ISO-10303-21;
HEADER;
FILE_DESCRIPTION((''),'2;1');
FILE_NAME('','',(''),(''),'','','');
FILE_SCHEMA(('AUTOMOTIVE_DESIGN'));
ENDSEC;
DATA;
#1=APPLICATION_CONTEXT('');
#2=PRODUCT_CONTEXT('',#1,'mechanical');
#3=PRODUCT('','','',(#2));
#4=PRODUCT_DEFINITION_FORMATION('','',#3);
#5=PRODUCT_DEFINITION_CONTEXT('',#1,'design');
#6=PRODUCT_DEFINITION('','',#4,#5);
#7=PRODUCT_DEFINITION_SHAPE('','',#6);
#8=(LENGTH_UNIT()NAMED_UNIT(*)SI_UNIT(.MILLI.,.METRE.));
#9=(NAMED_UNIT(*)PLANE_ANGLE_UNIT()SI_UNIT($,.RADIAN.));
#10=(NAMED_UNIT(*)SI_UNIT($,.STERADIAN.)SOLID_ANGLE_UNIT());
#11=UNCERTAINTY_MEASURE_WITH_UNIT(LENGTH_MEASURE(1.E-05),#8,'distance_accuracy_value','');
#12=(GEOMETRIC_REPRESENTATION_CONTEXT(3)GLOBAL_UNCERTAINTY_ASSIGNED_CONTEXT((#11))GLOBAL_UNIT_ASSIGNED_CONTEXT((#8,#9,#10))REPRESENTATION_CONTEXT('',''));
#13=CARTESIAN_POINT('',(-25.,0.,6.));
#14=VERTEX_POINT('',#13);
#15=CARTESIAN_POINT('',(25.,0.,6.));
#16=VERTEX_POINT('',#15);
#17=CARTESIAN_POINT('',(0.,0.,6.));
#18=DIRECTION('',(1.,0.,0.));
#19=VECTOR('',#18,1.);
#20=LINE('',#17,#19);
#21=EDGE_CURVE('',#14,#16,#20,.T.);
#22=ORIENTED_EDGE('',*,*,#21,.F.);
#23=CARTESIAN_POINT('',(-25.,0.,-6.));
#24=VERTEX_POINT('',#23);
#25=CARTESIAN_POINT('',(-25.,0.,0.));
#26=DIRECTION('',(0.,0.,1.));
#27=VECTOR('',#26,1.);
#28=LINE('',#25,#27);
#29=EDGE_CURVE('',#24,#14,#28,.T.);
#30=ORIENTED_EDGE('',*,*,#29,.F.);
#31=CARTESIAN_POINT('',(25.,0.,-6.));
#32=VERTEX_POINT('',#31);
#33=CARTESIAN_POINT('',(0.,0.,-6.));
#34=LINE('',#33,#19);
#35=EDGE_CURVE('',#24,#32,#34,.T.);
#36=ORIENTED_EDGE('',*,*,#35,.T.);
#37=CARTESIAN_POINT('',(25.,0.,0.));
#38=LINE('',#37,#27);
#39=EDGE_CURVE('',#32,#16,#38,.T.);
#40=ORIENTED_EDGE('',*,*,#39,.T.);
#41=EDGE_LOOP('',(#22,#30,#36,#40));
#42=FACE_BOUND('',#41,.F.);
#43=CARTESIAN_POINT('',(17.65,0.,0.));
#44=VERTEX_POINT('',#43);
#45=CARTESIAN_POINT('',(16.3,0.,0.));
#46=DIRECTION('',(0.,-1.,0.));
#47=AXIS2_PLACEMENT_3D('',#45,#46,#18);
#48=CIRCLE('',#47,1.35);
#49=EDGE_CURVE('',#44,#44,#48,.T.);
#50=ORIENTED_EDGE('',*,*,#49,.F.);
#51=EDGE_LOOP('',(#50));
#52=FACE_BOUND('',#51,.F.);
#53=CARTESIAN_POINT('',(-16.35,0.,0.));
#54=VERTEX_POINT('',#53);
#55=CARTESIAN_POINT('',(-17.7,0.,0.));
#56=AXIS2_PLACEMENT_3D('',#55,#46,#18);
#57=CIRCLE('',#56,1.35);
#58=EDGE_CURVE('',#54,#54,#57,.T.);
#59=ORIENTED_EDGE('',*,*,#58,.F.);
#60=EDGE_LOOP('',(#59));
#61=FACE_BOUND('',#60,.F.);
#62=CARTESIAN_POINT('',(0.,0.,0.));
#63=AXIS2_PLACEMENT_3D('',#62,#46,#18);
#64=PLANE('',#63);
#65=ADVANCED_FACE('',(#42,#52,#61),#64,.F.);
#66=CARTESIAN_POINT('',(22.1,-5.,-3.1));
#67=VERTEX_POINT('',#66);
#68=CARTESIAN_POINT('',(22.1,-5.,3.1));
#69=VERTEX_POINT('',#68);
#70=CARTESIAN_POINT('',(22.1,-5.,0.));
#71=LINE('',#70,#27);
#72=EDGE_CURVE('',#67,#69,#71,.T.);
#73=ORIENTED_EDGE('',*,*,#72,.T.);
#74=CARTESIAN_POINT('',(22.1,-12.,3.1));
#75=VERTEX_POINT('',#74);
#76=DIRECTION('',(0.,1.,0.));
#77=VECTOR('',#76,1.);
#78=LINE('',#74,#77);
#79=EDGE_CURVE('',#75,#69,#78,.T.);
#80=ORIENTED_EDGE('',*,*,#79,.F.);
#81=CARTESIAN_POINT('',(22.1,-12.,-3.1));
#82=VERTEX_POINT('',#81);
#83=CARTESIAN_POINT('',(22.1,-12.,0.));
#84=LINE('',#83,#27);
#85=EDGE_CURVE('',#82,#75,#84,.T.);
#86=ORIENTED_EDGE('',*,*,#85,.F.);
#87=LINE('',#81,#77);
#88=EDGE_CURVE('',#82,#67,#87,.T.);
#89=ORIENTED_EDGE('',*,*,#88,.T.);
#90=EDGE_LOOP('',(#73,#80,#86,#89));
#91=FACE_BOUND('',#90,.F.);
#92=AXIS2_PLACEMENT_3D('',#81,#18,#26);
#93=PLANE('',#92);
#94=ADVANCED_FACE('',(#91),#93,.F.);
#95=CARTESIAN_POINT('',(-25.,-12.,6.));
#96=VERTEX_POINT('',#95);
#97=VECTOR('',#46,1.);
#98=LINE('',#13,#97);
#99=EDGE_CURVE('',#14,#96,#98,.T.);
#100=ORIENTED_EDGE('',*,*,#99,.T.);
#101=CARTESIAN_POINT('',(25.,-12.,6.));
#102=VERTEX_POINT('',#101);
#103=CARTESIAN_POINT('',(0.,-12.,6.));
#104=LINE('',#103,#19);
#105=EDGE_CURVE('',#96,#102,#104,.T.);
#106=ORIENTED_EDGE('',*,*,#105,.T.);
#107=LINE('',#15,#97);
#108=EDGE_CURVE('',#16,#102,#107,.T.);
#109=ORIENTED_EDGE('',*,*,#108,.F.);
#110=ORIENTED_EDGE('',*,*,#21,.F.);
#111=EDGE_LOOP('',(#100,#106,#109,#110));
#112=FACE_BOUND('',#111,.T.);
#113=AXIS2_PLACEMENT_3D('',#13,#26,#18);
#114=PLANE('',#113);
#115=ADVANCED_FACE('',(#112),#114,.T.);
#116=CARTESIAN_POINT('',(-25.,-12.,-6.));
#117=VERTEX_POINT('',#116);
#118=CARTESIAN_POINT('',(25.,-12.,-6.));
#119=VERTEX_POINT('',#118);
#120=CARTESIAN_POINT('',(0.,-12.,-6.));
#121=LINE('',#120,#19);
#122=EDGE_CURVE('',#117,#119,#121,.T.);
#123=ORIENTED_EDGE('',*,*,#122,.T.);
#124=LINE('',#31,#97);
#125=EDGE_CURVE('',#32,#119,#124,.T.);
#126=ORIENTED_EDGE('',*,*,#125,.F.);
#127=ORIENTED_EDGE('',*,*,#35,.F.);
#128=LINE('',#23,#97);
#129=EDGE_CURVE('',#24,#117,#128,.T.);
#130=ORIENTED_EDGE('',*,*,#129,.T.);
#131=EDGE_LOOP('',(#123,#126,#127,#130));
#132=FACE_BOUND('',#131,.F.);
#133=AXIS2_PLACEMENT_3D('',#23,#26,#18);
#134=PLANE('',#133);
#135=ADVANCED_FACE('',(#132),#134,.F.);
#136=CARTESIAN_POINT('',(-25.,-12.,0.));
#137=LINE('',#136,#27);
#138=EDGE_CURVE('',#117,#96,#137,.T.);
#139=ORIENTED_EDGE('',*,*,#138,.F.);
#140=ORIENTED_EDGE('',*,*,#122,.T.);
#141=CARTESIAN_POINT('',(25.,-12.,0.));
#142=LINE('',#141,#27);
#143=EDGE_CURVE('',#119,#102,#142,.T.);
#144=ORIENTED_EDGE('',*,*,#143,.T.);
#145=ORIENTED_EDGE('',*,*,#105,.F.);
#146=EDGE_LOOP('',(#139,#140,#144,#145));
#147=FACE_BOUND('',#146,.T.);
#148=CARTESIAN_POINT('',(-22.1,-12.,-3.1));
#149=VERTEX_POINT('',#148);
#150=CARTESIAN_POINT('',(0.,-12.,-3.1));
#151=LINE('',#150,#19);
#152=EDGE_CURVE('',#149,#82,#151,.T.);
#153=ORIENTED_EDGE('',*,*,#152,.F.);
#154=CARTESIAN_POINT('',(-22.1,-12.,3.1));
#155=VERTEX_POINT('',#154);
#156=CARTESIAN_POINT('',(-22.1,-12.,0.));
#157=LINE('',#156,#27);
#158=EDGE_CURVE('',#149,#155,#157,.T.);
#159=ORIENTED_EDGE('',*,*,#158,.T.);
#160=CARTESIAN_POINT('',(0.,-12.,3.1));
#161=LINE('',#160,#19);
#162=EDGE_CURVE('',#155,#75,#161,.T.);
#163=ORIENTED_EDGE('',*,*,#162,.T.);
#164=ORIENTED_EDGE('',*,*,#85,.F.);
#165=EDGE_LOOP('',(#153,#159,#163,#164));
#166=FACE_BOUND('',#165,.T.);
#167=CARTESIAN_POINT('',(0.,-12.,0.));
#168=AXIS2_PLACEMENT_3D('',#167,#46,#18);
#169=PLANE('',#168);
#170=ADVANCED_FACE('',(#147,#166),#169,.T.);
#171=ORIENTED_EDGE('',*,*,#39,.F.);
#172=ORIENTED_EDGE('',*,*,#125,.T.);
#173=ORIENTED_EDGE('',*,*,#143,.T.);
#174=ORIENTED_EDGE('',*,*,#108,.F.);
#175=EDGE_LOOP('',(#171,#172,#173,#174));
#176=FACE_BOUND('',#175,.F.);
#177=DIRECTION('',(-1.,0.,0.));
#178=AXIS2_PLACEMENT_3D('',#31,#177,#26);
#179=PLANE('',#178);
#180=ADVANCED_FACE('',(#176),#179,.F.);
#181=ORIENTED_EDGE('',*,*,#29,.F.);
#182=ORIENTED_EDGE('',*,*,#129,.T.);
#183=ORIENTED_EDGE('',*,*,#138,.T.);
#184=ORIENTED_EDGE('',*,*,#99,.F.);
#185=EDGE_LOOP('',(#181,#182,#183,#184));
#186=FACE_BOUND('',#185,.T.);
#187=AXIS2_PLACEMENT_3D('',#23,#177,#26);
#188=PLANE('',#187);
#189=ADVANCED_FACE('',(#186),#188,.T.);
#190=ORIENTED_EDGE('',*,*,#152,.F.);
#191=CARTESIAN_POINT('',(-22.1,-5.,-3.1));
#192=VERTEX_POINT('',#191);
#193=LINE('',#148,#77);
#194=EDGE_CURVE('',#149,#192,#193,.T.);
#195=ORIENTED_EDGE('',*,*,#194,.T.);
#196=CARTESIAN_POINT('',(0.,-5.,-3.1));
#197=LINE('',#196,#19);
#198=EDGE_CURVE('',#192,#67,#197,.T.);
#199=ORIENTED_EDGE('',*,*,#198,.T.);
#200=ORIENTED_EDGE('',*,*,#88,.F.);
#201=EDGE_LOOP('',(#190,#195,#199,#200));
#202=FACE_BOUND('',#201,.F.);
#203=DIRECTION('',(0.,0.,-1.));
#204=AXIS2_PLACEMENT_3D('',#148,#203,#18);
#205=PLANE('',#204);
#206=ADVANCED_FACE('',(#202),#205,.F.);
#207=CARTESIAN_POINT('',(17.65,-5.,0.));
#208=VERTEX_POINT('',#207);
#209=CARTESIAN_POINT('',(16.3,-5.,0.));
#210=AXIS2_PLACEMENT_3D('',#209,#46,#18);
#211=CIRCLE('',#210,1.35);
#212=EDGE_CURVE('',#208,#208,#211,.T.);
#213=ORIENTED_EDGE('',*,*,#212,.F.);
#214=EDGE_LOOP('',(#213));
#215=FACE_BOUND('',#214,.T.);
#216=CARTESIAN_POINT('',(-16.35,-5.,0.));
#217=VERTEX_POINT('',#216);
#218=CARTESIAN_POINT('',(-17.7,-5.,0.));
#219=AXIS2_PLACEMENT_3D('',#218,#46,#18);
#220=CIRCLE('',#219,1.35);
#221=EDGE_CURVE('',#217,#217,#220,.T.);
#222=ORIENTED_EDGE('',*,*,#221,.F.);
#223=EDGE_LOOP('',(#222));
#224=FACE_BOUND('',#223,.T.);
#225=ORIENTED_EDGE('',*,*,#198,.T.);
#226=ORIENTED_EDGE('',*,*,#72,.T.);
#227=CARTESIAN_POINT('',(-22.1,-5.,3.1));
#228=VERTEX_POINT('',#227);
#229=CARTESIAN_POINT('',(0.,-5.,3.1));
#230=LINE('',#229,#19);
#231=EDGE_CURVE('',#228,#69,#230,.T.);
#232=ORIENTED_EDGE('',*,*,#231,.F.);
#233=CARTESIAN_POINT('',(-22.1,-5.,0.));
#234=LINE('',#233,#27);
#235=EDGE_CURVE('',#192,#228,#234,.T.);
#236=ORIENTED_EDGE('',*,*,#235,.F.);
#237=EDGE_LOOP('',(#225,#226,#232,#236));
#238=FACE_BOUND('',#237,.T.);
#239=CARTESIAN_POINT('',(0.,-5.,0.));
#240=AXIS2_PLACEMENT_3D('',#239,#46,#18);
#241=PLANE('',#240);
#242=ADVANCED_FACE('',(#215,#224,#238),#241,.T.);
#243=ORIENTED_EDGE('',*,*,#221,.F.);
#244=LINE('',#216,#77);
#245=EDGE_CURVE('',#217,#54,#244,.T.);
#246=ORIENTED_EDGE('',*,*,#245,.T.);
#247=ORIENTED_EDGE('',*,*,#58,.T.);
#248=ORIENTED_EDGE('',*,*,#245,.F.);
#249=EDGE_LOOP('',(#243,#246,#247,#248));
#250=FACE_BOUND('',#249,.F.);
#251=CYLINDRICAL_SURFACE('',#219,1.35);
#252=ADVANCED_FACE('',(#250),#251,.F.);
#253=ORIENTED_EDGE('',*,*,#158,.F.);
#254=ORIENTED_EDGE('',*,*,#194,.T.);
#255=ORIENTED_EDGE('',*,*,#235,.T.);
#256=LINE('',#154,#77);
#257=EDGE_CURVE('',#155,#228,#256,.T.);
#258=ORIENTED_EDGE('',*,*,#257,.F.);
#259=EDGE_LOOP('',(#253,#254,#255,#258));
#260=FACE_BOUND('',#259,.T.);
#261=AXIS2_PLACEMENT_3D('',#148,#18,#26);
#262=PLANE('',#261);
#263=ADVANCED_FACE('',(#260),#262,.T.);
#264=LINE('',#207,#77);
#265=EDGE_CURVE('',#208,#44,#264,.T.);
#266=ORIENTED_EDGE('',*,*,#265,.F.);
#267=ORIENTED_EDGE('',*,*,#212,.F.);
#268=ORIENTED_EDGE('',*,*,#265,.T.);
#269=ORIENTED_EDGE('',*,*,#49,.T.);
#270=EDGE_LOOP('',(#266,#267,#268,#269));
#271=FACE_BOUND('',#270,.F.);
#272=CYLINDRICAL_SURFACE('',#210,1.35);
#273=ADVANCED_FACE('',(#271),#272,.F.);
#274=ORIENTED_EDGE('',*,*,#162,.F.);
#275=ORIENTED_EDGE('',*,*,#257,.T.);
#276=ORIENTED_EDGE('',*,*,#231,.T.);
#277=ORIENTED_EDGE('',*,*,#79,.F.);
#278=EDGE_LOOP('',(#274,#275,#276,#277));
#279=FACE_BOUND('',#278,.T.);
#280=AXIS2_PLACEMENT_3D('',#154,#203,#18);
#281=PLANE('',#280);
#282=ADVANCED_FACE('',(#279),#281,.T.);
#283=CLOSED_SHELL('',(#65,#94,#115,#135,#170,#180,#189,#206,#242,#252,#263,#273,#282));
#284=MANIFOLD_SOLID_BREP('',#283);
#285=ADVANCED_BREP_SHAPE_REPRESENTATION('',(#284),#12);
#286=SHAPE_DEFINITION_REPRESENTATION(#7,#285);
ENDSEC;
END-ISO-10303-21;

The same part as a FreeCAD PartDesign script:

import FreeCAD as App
import Part
import Sketcher

V = App.Vector


def add_polygon(sketch, points):
    """Adds a closed chain of lines whose ends are joined by coincident constraints."""
    first, n = sketch.GeometryCount, len(points)
    for a, b in zip(points, points[1:] + points[:1]):
        sketch.addGeometry(Part.LineSegment(App.Vector(*a, 0), App.Vector(*b, 0)), False)
    for i in range(n):
        sketch.addConstraint(Sketcher.Constraint("Coincident", first + i, 2, first + (i + 1) % n, 1))

doc = App.newDocument("Part")
params = doc.addObject("Spreadsheet::Sheet", "Params")
for row, (alias, value) in enumerate([
    ("sketch1_width", "50 mm"),
    ("sketch1_height", "12 mm"),
    ("pad1_length", "12 mm"),
    ("sketch2_width", "44.2 mm"),
    ("sketch2_height", "6.2 mm"),
    ("pocket1_length", "7 mm"),
    ("sketch3_diameter", "2.7 mm"),
], start=1):
    params.set(f"A{row}", alias)
    params.set(f"B{row}", "=" + value)
    params.setAlias(f"B{row}", alias)

body = doc.addObject("PartDesign::Body", "Body")

# Sketch on XZ plane
sketch1 = body.newObject("Sketcher::SketchObject", "Sketch")
sketch1.AttachmentSupport = (doc.getObject("XZ_Plane"), [""])
sketch1.MapMode = "FlatFace"
add_polygon(sketch1, [(-25, 6), (-25, -6), (25, -6), (25, 6)])  # lines 0-3
sketch1.addConstraint(Sketcher.Constraint("Vertical", 0))
sketch1.addConstraint(Sketcher.Constraint("Horizontal", 1))
sketch1.addConstraint(Sketcher.Constraint("Vertical", 2))
sketch1.addConstraint(Sketcher.Constraint("Horizontal", 3))
sketch1.addConstraint(Sketcher.Constraint("Symmetric", 0, 2, 2, 2, -1, 1))
sketch1.addConstraint(Sketcher.Constraint("DistanceX", 1, 1, 1, 2, 50.0))
sketch1.addConstraint(Sketcher.Constraint("DistanceY", 0, 2, 0, 1, 12.0))
sketch1.setExpression("Constraints[9]", "Params.sketch1_width")
sketch1.setExpression("Constraints[10]", "Params.sketch1_height")
pad1 = body.newObject("PartDesign::Pad", "Pad")
pad1.Profile = sketch1
pad1.setExpression("Length", "Params.pad1_length")

# Sketch on XZ plane
sketch2 = body.newObject("Sketcher::SketchObject", "Sketch001")
sketch2.AttachmentSupport = (doc.getObject("XZ_Plane"), [""])
sketch2.MapMode = "FlatFace"
sketch2.AttachmentOffset = App.Placement(V(0, 0, 12), App.Rotation())
add_polygon(sketch2, [(-22.1, 3.1), (-22.1, -3.1), (22.1, -3.1), (22.1, 3.1)])  # lines 0-3
sketch2.addConstraint(Sketcher.Constraint("Vertical", 0))
sketch2.addConstraint(Sketcher.Constraint("Horizontal", 1))
sketch2.addConstraint(Sketcher.Constraint("Vertical", 2))
sketch2.addConstraint(Sketcher.Constraint("Horizontal", 3))
sketch2.addConstraint(Sketcher.Constraint("Symmetric", 0, 2, 2, 2, -1, 1))
sketch2.addConstraint(Sketcher.Constraint("DistanceX", 1, 1, 1, 2, 44.2))
sketch2.addConstraint(Sketcher.Constraint("DistanceY", 0, 2, 0, 1, 6.2))
sketch2.setExpression("Constraints[9]", "Params.sketch2_width")
sketch2.setExpression("Constraints[10]", "Params.sketch2_height")
pocket1 = body.newObject("PartDesign::Pocket", "Pocket")
pocket1.Profile = sketch2
pocket1.setExpression("Length", "Params.pocket1_length")

# Sketch on XZ plane
sketch3 = body.newObject("Sketcher::SketchObject", "Sketch002")
sketch3.AttachmentSupport = (doc.getObject("XZ_Plane"), [""])
sketch3.MapMode = "FlatFace"
sketch3.AttachmentOffset = App.Placement(V(0, 0, 5), App.Rotation())
sketch3.addGeometry(Part.Circle(V(-17.7, 0, 0), V(0, 0, 1), 1.35), False)
sketch3.addGeometry(Part.Circle(V(16.3, 0, 0), V(0, 0, 1), 1.35), False)
sketch3.addConstraint(Sketcher.Constraint("Equal", 0, 1))
sketch3.addConstraint(Sketcher.Constraint("PointOnObject", 0, 3, -1))
sketch3.addConstraint(Sketcher.Constraint("PointOnObject", 1, 3, -1))
sketch3.addConstraint(Sketcher.Constraint("Diameter", 0, 2.7))
sketch3.addConstraint(Sketcher.Constraint("DistanceX", 0, 3, 1, 3, 34.0))
sketch3.addConstraint(Sketcher.Constraint("DistanceX", 0, 3, -1, 1, 17.7))
sketch3.setExpression("Constraints[3]", "Params.sketch3_diameter")
pocket2 = body.newObject("PartDesign::Pocket", "Pocket001")
pocket2.Profile = sketch3
pocket2.Type = "ThroughAll"

doc.recompute()
